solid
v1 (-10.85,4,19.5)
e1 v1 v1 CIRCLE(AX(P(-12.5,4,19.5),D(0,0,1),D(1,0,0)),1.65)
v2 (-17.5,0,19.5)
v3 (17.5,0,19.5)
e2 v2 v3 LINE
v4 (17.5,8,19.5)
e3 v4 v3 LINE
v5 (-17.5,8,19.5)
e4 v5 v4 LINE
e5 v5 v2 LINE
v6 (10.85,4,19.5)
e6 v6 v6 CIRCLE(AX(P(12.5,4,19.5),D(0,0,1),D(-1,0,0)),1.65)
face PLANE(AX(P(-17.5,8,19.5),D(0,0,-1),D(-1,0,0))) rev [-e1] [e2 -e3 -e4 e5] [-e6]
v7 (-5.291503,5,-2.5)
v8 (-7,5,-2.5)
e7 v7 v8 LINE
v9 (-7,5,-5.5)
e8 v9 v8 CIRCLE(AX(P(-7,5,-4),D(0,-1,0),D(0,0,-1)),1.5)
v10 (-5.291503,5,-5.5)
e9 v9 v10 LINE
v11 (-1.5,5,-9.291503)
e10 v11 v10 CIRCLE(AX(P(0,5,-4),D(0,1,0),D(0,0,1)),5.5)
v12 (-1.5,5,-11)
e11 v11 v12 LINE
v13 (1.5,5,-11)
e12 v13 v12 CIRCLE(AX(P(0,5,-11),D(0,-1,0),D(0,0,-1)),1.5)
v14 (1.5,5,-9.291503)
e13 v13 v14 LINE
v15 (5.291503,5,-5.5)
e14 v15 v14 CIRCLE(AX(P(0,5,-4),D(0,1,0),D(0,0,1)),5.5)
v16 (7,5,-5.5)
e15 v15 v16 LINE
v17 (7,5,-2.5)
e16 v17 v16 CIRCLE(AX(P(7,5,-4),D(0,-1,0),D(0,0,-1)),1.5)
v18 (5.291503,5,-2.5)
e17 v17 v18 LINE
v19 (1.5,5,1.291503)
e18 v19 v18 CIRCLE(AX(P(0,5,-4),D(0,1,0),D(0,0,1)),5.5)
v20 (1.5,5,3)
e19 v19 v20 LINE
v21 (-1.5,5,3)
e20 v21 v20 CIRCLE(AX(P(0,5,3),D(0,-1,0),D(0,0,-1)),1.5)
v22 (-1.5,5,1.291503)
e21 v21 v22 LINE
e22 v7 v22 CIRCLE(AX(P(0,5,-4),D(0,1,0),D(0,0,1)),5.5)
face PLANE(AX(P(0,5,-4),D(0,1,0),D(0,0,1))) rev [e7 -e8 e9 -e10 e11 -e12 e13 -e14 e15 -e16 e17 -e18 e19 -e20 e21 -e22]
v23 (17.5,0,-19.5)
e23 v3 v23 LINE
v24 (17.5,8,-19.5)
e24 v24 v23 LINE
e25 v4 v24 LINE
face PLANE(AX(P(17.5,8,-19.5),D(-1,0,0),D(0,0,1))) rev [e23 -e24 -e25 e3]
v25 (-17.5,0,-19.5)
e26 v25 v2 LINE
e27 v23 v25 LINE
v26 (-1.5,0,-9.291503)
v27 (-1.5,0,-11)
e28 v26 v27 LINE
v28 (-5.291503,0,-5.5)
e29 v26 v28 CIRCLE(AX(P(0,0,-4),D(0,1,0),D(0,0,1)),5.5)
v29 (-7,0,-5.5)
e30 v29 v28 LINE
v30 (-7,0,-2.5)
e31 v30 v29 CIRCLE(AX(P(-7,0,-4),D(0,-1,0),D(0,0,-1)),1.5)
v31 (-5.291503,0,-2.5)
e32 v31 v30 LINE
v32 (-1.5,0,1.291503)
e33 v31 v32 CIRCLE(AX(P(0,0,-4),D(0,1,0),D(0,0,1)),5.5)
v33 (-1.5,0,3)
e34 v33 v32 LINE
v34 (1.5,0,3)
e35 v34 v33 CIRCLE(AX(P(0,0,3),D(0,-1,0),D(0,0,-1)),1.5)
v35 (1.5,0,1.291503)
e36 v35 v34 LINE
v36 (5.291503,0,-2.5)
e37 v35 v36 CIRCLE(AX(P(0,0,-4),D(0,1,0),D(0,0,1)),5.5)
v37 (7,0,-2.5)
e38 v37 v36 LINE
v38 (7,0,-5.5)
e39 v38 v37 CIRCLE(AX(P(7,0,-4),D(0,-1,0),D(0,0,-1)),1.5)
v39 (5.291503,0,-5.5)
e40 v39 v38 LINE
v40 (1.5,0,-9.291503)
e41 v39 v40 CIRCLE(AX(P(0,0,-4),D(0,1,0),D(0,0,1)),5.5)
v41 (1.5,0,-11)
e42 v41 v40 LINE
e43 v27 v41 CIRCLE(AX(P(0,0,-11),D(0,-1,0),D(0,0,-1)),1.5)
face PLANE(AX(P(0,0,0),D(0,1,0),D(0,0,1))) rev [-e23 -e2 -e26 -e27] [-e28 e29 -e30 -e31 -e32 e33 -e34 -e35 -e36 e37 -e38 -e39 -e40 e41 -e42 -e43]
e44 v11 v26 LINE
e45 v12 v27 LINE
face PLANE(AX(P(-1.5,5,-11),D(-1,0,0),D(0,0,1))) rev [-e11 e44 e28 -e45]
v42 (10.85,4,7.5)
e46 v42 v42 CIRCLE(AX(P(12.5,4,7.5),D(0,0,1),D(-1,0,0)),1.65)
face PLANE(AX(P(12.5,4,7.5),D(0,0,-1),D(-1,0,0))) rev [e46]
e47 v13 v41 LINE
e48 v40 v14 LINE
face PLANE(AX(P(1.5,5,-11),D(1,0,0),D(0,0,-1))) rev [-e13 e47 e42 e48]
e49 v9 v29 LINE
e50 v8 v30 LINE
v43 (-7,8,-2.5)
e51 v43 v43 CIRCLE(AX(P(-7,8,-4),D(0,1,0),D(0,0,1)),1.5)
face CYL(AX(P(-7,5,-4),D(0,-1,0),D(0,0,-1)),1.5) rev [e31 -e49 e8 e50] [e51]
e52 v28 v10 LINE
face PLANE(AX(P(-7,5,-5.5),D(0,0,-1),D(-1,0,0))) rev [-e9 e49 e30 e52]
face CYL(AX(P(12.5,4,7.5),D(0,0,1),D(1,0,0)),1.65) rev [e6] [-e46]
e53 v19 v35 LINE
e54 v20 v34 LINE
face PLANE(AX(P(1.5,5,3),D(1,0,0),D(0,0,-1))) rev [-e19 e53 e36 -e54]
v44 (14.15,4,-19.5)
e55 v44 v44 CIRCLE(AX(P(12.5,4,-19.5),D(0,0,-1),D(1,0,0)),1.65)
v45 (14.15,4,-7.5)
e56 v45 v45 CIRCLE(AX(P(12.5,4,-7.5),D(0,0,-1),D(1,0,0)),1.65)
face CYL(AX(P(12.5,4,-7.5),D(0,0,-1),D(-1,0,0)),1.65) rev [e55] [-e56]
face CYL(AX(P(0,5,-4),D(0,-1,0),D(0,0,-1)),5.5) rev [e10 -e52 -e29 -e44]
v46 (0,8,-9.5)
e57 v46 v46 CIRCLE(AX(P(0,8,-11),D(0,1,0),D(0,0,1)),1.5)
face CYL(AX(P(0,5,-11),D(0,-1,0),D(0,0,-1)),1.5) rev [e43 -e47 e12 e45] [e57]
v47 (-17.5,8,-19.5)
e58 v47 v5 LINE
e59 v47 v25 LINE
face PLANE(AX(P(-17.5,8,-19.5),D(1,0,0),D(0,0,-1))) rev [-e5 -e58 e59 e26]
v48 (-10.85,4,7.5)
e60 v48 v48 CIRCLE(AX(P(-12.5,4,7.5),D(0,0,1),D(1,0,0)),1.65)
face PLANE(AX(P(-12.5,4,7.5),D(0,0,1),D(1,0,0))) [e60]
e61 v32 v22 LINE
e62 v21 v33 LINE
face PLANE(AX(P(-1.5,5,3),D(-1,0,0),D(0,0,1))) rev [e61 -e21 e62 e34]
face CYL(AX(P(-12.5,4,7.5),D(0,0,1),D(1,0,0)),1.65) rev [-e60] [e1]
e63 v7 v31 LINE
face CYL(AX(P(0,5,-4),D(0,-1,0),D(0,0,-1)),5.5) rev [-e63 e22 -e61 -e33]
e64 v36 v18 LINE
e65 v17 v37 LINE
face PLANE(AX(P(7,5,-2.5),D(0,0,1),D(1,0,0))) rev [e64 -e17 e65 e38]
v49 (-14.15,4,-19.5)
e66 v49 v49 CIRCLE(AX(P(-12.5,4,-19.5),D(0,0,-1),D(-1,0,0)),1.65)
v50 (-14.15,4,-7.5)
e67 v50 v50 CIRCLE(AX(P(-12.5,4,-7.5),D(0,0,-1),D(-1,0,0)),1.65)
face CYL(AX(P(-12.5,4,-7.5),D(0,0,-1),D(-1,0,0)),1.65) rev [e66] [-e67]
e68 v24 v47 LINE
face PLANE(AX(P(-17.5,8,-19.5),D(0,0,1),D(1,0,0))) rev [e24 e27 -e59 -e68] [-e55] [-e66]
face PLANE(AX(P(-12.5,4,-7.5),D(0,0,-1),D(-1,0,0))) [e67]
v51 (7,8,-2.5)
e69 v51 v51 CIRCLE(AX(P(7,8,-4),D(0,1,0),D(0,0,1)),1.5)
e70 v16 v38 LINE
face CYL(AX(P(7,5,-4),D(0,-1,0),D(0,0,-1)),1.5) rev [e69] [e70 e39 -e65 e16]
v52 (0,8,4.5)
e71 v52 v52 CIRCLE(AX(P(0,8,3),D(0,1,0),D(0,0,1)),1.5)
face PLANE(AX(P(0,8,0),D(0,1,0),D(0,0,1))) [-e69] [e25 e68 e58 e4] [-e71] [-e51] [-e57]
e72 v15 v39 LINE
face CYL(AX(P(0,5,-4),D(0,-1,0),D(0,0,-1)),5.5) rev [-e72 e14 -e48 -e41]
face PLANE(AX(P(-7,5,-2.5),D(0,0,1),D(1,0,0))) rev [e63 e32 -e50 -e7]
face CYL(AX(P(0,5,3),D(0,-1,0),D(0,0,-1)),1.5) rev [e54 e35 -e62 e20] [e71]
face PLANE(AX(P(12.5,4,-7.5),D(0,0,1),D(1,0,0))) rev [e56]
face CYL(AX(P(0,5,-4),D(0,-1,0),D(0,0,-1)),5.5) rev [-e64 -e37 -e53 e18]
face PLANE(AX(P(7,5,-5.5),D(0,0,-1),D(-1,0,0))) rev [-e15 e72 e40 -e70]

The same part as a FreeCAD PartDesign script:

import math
import FreeCAD as App
import Part
import Sketcher

V = App.Vector


def add_polygon(sketch, points):
    """Adds a closed chain of lines whose ends are joined by coincident constraints."""
    first, n = sketch.GeometryCount, len(points)
    for a, b in zip(points, points[1:] + points[:1]):
        sketch.addGeometry(Part.LineSegment(App.Vector(*a, 0), App.Vector(*b, 0)), False)
    for i in range(n):
        sketch.addConstraint(Sketcher.Constraint("Coincident", first + i, 2, first + (i + 1) % n, 1))

doc = App.newDocument("Part")
body = doc.addObject("PartDesign::Body", "Body")

sketch1 = body.newObject("Sketcher::SketchObject", "Sketch")
sketch1.AttachmentSupport = (doc.getObject("XZ_Plane"), [""])
sketch1.MapMode = "FlatFace"
add_polygon(sketch1, [(-17.5, -19.5), (-17.5, 19.5), (17.5, 19.5), (17.5, -19.5)])
sketch1.addConstraint([
    Sketcher.Constraint("Vertical", 0),
    Sketcher.Constraint("Horizontal", 1),
    Sketcher.Constraint("Vertical", 2),
    Sketcher.Constraint("Horizontal", 3),
    Sketcher.Constraint("Symmetric", 0, 2, 2, 2, -1, 1),
    Sketcher.Constraint("DistanceX", 1, 1, 1, 2, 35.0),
    Sketcher.Constraint("DistanceY", 0, 1, 0, 2, 39.0),
])
pad1 = body.newObject("PartDesign::Pad", "Pad")
pad1.Profile = sketch1
pad1.Length = 8
pad1.Reversed = True

sketch2 = body.newObject("Sketcher::SketchObject", "Sketch001")
sketch2.AttachmentSupport = (doc.getObject("XY_Plane"), [""])
sketch2.MapMode = "FlatFace"
sketch2.AttachmentOffset = App.Placement(V(0, 0, -19.5), App.Rotation())
sketch2.addGeometry([
    Part.Circle(V(-12.5, 4, 0), V(0, 0, 1), 1.65),
    Part.Circle(V(12.5, 4, 0), V(0, 0, 1), 1.65),
], False)
sketch2.addConstraint([
    Sketcher.Constraint("Equal", 0, 1),
    Sketcher.Constraint("Symmetric", 0, 3, 1, 3, -2),
    Sketcher.Constraint("Diameter", 0, 3.3),
    Sketcher.Constraint("DistanceY", -1, 1, 0, 3, 4.0),
    Sketcher.Constraint("DistanceX", 0, 3, 1, 3, 25.0),
])
pocket1 = body.newObject("PartDesign::Pocket", "Pocket")
pocket1.Profile = sketch2
pocket1.Length = 12
pocket1.Reversed = True

sketch3 = body.newObject("Sketcher::SketchObject", "Sketch002")
sketch3.AttachmentSupport = (doc.getObject("XZ_Plane"), [""])
sketch3.MapMode = "FlatFace"
sketch3.addGeometry(Part.Circle(V(0, -4, 0), V(0, 0, 1), 5.5), False)
sketch3.addConstraint([
    Sketcher.Constraint("PointOnObject", 0, 3, -2),
    Sketcher.Constraint("Diameter", 0, 11.0),
    Sketcher.Constraint("DistanceY", 0, 3, -1, 1, 4.0),
])
pocket2 = body.newObject("PartDesign::Pocket", "Pocket001")
pocket2.Profile = sketch3
pocket2.Length = 5

sketch4 = body.newObject("Sketcher::SketchObject", "Sketch003")
sketch4.AttachmentSupport = (doc.getObject("XZ_Plane"), [""])
sketch4.MapMode = "FlatFace"
sketch4.addGeometry([
    Part.LineSegment(V(1.5, -11, 0), V(1.5, -9, 0)),
    Part.LineSegment(V(1.5, -9, 0), V(-1.5, -9, 0)),
    Part.LineSegment(V(-1.5, -9, 0), V(-1.5, -11, 0)),
    Part.ArcOfCircle(Part.Circle(V(0, -11, 0), V(0, 0, 1), 1.5), math.radians(180), math.radians(360)),
    Part.LineSegment(V(-7, -5.5, 0), V(-5, -5.5, 0)),
    Part.LineSegment(V(-5, -5.5, 0), V(-5, -2.5, 0)),
    Part.LineSegment(V(-5, -2.5, 0), V(-7, -2.5, 0)),
    Part.ArcOfCircle(Part.Circle(V(-7, -4, 0), V(0, 0, 1), 1.5), math.radians(90), math.radians(270)),
    Part.LineSegment(V(-1.5, 3, 0), V(-1.5, 1, 0)),
    Part.LineSegment(V(-1.5, 1, 0), V(1.5, 1, 0)),
    Part.LineSegment(V(1.5, 1, 0), V(1.5, 3, 0)),
    Part.ArcOfCircle(Part.Circle(V(0, 3, 0), V(0, 0, 1), 1.5), math.radians(0), math.radians(180)),
    Part.LineSegment(V(7, -2.5, 0), V(5, -2.5, 0)),
    Part.LineSegment(V(5, -2.5, 0), V(5, -5.5, 0)),
    Part.LineSegment(V(5, -5.5, 0), V(7, -5.5, 0)),
    Part.ArcOfCircle(Part.Circle(V(7, -4, 0), V(0, 0, 1), 1.5), math.radians(-90), math.radians(90)),
], False)
sketch4.addConstraint([
    Sketcher.Constraint("Coincident", 0, 2, 1, 1),
    Sketcher.Constraint("Coincident", 1, 2, 2, 1),
    Sketcher.Constraint("Tangent", 2, 2, 3, 1),
    Sketcher.Constraint("Tangent", 3, 2, 0, 1),
    Sketcher.Constraint("Coincident", 4, 2, 5, 1),
    Sketcher.Constraint("Coincident", 5, 2, 6, 1),
    Sketcher.Constraint("Tangent", 6, 2, 7, 1),
    Sketcher.Constraint("Tangent", 7, 2, 4, 1),
    Sketcher.Constraint("Coincident", 8, 2, 9, 1),
    Sketcher.Constraint("Coincident", 9, 2, 10, 1),
    Sketcher.Constraint("Tangent", 10, 2, 11, 1),
    Sketcher.Constraint("Tangent", 11, 2, 8, 1),
    Sketcher.Constraint("Coincident", 12, 2, 13, 1),
    Sketcher.Constraint("Coincident", 13, 2, 14, 1),
    Sketcher.Constraint("Tangent", 14, 2, 15, 1),
    Sketcher.Constraint("Tangent", 15, 2, 12, 1),
    Sketcher.Constraint("Vertical", 0),
    Sketcher.Constraint("Horizontal", 1),
    Sketcher.Constraint("Vertical", 2),
    Sketcher.Constraint("Horizontal", 4),
    Sketcher.Constraint("Vertical", 5),
    Sketcher.Constraint("Horizontal", 6),
    Sketcher.Constraint("Vertical", 8),
    Sketcher.Constraint("Horizontal", 9),
    Sketcher.Constraint("Vertical", 10),
    Sketcher.Constraint("Horizontal", 12),
    Sketcher.Constraint("Vertical", 13),
    Sketcher.Constraint("Horizontal", 14),
    Sketcher.Constraint("Equal", 3, 7),
    Sketcher.Constraint("Equal", 7, 11),
    Sketcher.Constraint("Equal", 11, 15),
    Sketcher.Constraint("Symmetric", 7, 3, 15, 3, -2),
    Sketcher.Constraint("PointOnObject", 3, 3, -2),
    Sketcher.Constraint("PointOnObject", 11, 3, -2),
    Sketcher.Constraint("Equal", 6, 12),
    Sketcher.Constraint("Equal", 14, 0),
    Sketcher.Constraint("Equal", 2, 8),
    Sketcher.Constraint("Radius", 3, 1.5),
    Sketcher.Constraint("DistanceX", 4, 1, 4, 2, 2.0),
    Sketcher.Constraint("DistanceY", 3, 3, -1, 1, 11.0),
    Sketcher.Constraint("DistanceX", 7, 3, -1, 1, 7.0),
    Sketcher.Constraint("DistanceY", 7, 3, -1, 1, 4.0),
    Sketcher.Constraint("DistanceY", -1, 1, 11, 3, 3.0),
])
pocket3 = body.newObject("PartDesign::Pocket", "Pocket002")
pocket3.Profile = sketch4
pocket3.Length = 5

sketch5 = body.newObject("Sketcher::SketchObject", "Sketch004")
sketch5.AttachmentSupport = (doc.getObject("XZ_Plane"), [""])
sketch5.MapMode = "FlatFace"
sketch5.AttachmentOffset = App.Placement(V(0, 0, -5), App.Rotation())
sketch5.addGeometry([
    Part.Circle(V(0, -11, 0), V(0, 0, 1), 1.5),
    Part.Circle(V(7, -4, 0), V(0, 0, 1), 1.5),
    Part.Circle(V(0, 3, 0), V(0, 0, 1), 1.5),
    Part.Circle(V(-7, -4, 0), V(0, 0, 1), 1.5),
], False)
sketch5.addConstraint([
    Sketcher.Constraint("Equal", 0, 1),
    Sketcher.Constraint("Equal", 1, 2),
    Sketcher.Constraint("Equal", 2, 3),
    Sketcher.Constraint("Symmetric", 1, 3, 3, 3, -2),
    Sketcher.Constraint("PointOnObject", 0, 3, -2),
    Sketcher.Constraint("PointOnObject", 2, 3, -2),
    Sketcher.Constraint("Diameter", 0, 3.0),
    Sketcher.Constraint("DistanceY", 0, 3, -1, 1, 11.0),
    Sketcher.Constraint("DistanceX", -1, 1, 1, 3, 7.0),
    Sketcher.Constraint("DistanceY", 1, 3, -1, 1, 4.0),
    Sketcher.Constraint("DistanceY", -1, 1, 2, 3, 3.0),
])
pocket4 = body.newObject("PartDesign::Pocket", "Pocket003")
pocket4.Profile = sketch5
pocket4.Length = 5

sketch6 = body.newObject("Sketcher::SketchObject", "Sketch005")
sketch6.AttachmentSupport = (doc.getObject("XY_Plane"), [""])
sketch6.MapMode = "FlatFace"
sketch6.AttachmentOffset = App.Placement(V(0, 0, 7.5), App.Rotation())
sketch6.addGeometry([
    Part.Circle(V(-12.5, 4, 0), V(0, 0, 1), 1.65),
    Part.Circle(V(12.5, 4, 0), V(0, 0, 1), 1.65),
], False)
sketch6.addConstraint([
    Sketcher.Constraint("Equal", 0, 1),
    Sketcher.Constraint("Symmetric", 0, 3, 1, 3, -2),
    Sketcher.Constraint("Diameter", 0, 3.3),
    Sketcher.Constraint("DistanceY", -1, 1, 0, 3, 4.0),
    Sketcher.Constraint("DistanceX", 0, 3, 1, 3, 25.0),
])
pocket5 = body.newObject("PartDesign::Pocket", "Pocket004")
pocket5.Profile = sketch6
pocket5.Length = 12
pocket5.Reversed = True

doc.recompute()
